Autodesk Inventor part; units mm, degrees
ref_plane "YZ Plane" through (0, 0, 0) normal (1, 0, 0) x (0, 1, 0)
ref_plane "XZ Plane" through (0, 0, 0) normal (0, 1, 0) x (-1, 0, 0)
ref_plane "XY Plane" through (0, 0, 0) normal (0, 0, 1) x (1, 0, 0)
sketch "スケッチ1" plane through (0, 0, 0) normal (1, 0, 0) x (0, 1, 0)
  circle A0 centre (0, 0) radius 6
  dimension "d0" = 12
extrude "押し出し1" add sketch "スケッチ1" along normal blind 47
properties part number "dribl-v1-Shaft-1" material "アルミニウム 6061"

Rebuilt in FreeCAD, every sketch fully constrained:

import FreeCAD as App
import Part
import Sketcher

V = App.Vector

doc = App.newDocument("Part")
params = doc.addObject("Spreadsheet::Sheet", "Params")
for row, (alias, value) in enumerate([
    ("sketch1_diameter", "12 mm"),
    ("pad1_length", "47 mm"),
], start=1):
    params.set(f"A{row}", alias)
    params.set(f"B{row}", "=" + value)
    params.setAlias(f"B{row}", alias)

body = doc.addObject("PartDesign::Body", "Body")

# Sketch on YZ plane
sketch1 = doc.addObject("Sketcher::SketchObject", "Sketch")
body.addObject(sketch1)
sketch1.AttachmentSupport = (doc.YZ_Plane, [""])
sketch1.MapMode = "FlatFace"
sketch1.addGeometry(Part.Circle(V(0, 0, 0), V(0, 0, 1), 6), False)
sketch1.addConstraint([
    Sketcher.Constraint("Coincident", 0, 3, -1, 1),
    Sketcher.Constraint("Diameter", 0, 12.0),
])
sketch1.setExpression("Constraints[1]", "Params.sketch1_diameter")
pad1 = doc.addObject("PartDesign::Pad", "Pad")
body.addObject(pad1)
pad1.Profile = sketch1
pad1.setExpression("Length", "Params.pad1_length")

doc.recompute()
